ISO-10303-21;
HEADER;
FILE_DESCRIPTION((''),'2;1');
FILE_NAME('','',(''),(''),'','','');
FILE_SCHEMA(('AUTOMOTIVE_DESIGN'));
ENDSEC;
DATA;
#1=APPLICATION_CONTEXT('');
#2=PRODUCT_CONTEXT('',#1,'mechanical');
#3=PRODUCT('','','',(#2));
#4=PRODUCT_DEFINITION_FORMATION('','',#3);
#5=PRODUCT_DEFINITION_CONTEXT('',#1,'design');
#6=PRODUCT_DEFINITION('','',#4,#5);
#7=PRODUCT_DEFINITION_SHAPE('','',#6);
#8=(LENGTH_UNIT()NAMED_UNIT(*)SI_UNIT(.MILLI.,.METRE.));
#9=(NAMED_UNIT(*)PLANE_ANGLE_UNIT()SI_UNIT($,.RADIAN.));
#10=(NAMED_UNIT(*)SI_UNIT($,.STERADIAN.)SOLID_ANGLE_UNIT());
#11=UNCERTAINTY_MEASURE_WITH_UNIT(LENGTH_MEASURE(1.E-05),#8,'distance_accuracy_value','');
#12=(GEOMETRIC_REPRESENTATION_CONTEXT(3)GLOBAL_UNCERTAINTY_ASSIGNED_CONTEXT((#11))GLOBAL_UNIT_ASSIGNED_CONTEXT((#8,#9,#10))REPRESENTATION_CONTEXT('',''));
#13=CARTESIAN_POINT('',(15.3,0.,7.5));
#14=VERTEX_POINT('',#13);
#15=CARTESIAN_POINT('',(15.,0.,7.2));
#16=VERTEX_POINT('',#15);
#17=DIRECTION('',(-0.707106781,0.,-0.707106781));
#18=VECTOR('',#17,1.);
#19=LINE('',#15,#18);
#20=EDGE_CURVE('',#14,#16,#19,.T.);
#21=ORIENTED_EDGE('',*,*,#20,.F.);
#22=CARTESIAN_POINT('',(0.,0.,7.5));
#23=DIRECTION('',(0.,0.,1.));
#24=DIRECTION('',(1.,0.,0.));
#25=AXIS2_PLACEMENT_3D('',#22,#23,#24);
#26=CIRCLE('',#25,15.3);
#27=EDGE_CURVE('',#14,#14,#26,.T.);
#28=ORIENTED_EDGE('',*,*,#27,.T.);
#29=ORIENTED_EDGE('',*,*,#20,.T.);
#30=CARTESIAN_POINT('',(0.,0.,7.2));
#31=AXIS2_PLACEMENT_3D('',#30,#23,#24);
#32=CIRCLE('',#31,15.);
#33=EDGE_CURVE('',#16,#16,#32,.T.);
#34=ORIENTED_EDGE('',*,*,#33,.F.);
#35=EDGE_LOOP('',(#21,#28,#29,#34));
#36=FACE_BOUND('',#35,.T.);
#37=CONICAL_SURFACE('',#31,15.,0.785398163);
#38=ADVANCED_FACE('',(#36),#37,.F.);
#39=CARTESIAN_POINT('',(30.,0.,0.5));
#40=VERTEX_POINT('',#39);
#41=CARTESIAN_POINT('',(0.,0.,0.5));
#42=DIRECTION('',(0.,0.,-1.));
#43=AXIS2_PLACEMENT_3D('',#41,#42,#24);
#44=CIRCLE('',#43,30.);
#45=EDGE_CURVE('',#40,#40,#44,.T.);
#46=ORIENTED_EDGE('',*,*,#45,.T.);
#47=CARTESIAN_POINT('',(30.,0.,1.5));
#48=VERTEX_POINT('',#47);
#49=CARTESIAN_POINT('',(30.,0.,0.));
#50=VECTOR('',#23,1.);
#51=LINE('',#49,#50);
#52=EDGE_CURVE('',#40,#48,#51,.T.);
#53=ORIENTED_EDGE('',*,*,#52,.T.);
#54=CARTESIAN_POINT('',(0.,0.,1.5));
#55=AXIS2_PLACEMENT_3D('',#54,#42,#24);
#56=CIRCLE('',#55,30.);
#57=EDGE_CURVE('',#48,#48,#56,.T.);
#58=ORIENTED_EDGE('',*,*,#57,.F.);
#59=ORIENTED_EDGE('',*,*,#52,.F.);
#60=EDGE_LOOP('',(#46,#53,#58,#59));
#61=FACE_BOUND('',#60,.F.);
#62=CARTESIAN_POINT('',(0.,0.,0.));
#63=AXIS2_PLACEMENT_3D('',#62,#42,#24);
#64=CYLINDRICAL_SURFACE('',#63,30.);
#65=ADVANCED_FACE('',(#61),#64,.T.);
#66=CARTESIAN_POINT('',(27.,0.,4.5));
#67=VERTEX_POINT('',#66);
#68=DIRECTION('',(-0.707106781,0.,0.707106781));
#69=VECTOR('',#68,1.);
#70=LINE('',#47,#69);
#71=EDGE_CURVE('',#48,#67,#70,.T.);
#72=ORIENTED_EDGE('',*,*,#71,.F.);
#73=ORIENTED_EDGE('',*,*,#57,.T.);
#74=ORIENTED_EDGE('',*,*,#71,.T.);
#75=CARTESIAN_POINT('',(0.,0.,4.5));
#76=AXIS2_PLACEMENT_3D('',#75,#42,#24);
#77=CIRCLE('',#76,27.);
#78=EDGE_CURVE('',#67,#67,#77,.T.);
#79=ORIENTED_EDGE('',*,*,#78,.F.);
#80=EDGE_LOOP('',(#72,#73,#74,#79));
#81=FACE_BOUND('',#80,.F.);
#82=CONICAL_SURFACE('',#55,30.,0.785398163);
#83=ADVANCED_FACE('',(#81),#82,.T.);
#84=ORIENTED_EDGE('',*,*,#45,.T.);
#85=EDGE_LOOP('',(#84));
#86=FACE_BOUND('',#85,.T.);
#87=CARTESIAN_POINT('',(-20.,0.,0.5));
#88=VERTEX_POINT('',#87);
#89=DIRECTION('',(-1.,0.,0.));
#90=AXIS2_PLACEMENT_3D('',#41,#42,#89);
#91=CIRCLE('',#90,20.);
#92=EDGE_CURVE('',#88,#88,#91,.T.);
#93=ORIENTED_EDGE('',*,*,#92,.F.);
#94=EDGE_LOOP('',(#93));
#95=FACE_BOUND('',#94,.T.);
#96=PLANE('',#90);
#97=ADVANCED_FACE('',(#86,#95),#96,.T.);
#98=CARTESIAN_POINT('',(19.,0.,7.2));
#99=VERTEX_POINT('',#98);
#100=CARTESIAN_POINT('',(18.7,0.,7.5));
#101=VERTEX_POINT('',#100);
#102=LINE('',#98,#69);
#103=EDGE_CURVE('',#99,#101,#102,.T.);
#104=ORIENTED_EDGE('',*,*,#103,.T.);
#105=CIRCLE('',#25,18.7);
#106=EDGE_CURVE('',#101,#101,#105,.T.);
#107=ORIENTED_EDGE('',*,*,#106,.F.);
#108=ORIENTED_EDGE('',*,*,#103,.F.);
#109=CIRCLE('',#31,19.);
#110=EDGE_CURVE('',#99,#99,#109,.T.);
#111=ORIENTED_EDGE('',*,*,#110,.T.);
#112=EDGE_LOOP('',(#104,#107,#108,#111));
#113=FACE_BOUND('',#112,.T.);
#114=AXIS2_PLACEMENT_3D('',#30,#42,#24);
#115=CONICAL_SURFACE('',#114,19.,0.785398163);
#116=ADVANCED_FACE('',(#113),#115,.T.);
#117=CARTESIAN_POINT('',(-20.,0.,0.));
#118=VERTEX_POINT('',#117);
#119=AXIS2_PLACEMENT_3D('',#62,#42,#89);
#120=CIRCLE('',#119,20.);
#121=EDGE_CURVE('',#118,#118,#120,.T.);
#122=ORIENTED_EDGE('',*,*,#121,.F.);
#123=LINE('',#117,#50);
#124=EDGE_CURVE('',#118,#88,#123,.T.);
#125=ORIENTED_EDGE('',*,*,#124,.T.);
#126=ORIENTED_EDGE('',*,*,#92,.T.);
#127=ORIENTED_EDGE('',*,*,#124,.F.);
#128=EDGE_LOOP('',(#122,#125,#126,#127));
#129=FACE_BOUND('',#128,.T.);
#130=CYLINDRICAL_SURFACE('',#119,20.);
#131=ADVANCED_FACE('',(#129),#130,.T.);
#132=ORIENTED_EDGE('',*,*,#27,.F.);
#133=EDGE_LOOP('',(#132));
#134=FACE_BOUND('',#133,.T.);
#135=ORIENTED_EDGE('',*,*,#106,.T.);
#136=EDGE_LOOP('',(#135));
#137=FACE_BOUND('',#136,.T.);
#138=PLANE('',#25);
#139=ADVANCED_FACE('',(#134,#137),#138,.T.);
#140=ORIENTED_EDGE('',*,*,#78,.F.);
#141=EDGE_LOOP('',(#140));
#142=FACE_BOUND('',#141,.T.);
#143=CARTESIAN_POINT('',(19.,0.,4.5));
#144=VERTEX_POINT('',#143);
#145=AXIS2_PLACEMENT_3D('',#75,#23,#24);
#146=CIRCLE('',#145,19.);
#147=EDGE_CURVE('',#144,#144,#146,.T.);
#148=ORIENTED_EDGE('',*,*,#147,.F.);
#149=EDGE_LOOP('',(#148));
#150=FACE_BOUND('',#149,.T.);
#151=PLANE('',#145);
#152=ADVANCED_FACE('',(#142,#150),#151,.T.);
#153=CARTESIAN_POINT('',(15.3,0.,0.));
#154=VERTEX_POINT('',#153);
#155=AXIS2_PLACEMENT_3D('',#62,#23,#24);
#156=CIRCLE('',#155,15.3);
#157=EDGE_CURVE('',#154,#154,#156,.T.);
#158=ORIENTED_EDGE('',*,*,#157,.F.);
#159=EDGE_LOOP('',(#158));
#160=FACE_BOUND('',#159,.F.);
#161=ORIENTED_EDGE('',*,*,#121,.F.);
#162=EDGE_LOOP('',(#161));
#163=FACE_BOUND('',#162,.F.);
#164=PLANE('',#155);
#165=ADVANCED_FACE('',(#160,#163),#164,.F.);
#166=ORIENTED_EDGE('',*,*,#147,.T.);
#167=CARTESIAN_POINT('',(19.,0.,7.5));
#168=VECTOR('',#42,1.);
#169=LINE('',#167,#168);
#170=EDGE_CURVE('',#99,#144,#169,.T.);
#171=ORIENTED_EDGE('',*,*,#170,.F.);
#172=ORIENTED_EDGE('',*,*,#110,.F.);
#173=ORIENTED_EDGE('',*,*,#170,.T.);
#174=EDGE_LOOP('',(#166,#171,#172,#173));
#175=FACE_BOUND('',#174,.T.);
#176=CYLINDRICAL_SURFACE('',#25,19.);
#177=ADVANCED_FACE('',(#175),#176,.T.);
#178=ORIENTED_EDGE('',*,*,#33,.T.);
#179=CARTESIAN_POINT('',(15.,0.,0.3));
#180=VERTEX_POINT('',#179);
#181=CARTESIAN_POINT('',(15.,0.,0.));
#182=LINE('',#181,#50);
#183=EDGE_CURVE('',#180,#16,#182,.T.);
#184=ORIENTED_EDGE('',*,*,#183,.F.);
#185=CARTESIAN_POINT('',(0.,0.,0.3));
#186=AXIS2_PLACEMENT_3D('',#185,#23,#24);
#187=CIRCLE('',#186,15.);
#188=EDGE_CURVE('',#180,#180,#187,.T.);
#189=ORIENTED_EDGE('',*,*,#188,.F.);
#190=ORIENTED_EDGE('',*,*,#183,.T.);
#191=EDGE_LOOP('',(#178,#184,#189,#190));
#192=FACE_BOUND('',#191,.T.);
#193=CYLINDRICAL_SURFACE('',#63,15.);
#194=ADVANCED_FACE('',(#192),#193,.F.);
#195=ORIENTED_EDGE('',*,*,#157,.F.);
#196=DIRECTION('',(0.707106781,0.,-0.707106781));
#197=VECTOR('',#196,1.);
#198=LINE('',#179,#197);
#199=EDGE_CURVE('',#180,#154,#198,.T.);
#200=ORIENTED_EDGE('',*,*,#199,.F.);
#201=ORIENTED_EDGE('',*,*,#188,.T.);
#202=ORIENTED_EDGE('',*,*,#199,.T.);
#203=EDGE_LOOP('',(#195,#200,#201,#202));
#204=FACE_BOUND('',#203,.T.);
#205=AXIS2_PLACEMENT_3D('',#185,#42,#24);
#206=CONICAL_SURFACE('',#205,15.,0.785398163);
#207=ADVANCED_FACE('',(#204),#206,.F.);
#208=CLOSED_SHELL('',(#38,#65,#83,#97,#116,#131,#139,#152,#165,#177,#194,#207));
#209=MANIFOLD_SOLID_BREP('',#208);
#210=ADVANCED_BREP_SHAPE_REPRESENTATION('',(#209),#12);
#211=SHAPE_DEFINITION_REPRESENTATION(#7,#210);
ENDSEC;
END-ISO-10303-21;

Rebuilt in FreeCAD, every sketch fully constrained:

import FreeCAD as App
import Part
import Sketcher
Q = App.Units.Quantity


def edges_at(feature, points):
    """Names of the edges that pass closest to the given points."""
    edges = feature.Shape.Edges
    near = lambda p: min(range(len(edges)), key=lambda i: edges[i].distToShape(Part.Vertex(*p))[0])
    return sorted({f"Edge{near(p) + 1}" for p in points})

doc = App.newDocument("Part")
body = doc.addObject("PartDesign::Body", "Body")

sketch1 = body.newObject("Sketcher::SketchObject", "Sketch")
sketch1.AttachmentSupport = (doc.getObject("XY_Plane"), [""])
sketch1.MapMode = "FlatFace"
sketch1.addGeometry([
    Part.Circle(App.Vector(0, 0, 0), App.Vector(0, 0, 1), 30),
    Part.Circle(App.Vector(0, 0, 0), App.Vector(0, 0, 1), 15),
], False)
sketch1.addConstraint([
    Sketcher.Constraint("Coincident", 0, 3, -1, 1),
    Sketcher.Constraint("Coincident", 1, 3, -1, 1),
    Sketcher.Constraint("Diameter", 0, Q("60 mm")),
    Sketcher.Constraint("Diameter", 1, Q("30 mm")),
])
pad1 = body.newObject("PartDesign::Pad", "Pad")
pad1.Profile = sketch1
pad1.Length = 7.5

sketch2 = body.newObject("Sketcher::SketchObject", "Sketch001")
sketch2.AttachmentSupport = (doc.getObject("XY_Plane"), [""])
sketch2.MapMode = "FlatFace"
sketch2.addGeometry([
    Part.Circle(App.Vector(0, 0, 0), App.Vector(0, 0, 1), 35),
    Part.Circle(App.Vector(0, 0, 0), App.Vector(0, 0, 1), 20),
], False)
sketch2.addConstraint([
    Sketcher.Constraint("Coincident", 0, 3, -1, 1),
    Sketcher.Constraint("Coincident", 1, 3, -1, 1),
    Sketcher.Constraint("Diameter", 1, Q("40 mm")),
    Sketcher.Constraint("Diameter", 0, Q("69.8968 mm")),
])
pocket1 = body.newObject("PartDesign::Pocket", "Pocket")
pocket1.Profile = sketch2
pocket1.Length = 0.5
pocket1.Reversed = True

sketch3 = body.newObject("Sketcher::SketchObject", "Sketch002")
sketch3.AttachmentSupport = (doc.getObject("XY_Plane"), [""])
sketch3.MapMode = "FlatFace"
sketch3.AttachmentOffset = App.Placement(App.Vector(0, 0, 7.5), App.Rotation())
sketch3.addGeometry([
    Part.Circle(App.Vector(0, 0, 0), App.Vector(0, 0, 1), 31),
    Part.Circle(App.Vector(0, 0, 0), App.Vector(0, 0, 1), 19),
], False)
sketch3.addConstraint([
    Sketcher.Constraint("Coincident", 0, 3, -1, 1),
    Sketcher.Constraint("Coincident", 1, 3, -1, 1),
    Sketcher.Constraint("Diameter", 1, Q("38 mm")),
    Sketcher.Constraint("Diameter", 0, Q("61.7754 mm")),
])
pocket2 = body.newObject("PartDesign::Pocket", "Pocket001")
pocket2.Profile = sketch3
pocket2.Length = 3
doc.recompute()

chamfer = body.newObject("PartDesign::Chamfer", "Chamfer")
chamfer.Base = (pocket2, edges_at(pocket2, [(-30, 0, 4.5)]))
chamfer.Size = 3
doc.recompute()

chamfer2 = body.newObject("PartDesign::Chamfer", "Chamfer001")
chamfer2.Base = (chamfer, edges_at(chamfer, [(-15, 0, 7.5), (-19, 0, 7.5)]))
chamfer2.Size = 0.3
doc.recompute()

chamfer3 = body.newObject("PartDesign::Chamfer", "Chamfer002")
chamfer3.Base = (chamfer2, edges_at(chamfer2, [(-15, 0, 0)]))
chamfer3.Size = 0.3

doc.recompute()
